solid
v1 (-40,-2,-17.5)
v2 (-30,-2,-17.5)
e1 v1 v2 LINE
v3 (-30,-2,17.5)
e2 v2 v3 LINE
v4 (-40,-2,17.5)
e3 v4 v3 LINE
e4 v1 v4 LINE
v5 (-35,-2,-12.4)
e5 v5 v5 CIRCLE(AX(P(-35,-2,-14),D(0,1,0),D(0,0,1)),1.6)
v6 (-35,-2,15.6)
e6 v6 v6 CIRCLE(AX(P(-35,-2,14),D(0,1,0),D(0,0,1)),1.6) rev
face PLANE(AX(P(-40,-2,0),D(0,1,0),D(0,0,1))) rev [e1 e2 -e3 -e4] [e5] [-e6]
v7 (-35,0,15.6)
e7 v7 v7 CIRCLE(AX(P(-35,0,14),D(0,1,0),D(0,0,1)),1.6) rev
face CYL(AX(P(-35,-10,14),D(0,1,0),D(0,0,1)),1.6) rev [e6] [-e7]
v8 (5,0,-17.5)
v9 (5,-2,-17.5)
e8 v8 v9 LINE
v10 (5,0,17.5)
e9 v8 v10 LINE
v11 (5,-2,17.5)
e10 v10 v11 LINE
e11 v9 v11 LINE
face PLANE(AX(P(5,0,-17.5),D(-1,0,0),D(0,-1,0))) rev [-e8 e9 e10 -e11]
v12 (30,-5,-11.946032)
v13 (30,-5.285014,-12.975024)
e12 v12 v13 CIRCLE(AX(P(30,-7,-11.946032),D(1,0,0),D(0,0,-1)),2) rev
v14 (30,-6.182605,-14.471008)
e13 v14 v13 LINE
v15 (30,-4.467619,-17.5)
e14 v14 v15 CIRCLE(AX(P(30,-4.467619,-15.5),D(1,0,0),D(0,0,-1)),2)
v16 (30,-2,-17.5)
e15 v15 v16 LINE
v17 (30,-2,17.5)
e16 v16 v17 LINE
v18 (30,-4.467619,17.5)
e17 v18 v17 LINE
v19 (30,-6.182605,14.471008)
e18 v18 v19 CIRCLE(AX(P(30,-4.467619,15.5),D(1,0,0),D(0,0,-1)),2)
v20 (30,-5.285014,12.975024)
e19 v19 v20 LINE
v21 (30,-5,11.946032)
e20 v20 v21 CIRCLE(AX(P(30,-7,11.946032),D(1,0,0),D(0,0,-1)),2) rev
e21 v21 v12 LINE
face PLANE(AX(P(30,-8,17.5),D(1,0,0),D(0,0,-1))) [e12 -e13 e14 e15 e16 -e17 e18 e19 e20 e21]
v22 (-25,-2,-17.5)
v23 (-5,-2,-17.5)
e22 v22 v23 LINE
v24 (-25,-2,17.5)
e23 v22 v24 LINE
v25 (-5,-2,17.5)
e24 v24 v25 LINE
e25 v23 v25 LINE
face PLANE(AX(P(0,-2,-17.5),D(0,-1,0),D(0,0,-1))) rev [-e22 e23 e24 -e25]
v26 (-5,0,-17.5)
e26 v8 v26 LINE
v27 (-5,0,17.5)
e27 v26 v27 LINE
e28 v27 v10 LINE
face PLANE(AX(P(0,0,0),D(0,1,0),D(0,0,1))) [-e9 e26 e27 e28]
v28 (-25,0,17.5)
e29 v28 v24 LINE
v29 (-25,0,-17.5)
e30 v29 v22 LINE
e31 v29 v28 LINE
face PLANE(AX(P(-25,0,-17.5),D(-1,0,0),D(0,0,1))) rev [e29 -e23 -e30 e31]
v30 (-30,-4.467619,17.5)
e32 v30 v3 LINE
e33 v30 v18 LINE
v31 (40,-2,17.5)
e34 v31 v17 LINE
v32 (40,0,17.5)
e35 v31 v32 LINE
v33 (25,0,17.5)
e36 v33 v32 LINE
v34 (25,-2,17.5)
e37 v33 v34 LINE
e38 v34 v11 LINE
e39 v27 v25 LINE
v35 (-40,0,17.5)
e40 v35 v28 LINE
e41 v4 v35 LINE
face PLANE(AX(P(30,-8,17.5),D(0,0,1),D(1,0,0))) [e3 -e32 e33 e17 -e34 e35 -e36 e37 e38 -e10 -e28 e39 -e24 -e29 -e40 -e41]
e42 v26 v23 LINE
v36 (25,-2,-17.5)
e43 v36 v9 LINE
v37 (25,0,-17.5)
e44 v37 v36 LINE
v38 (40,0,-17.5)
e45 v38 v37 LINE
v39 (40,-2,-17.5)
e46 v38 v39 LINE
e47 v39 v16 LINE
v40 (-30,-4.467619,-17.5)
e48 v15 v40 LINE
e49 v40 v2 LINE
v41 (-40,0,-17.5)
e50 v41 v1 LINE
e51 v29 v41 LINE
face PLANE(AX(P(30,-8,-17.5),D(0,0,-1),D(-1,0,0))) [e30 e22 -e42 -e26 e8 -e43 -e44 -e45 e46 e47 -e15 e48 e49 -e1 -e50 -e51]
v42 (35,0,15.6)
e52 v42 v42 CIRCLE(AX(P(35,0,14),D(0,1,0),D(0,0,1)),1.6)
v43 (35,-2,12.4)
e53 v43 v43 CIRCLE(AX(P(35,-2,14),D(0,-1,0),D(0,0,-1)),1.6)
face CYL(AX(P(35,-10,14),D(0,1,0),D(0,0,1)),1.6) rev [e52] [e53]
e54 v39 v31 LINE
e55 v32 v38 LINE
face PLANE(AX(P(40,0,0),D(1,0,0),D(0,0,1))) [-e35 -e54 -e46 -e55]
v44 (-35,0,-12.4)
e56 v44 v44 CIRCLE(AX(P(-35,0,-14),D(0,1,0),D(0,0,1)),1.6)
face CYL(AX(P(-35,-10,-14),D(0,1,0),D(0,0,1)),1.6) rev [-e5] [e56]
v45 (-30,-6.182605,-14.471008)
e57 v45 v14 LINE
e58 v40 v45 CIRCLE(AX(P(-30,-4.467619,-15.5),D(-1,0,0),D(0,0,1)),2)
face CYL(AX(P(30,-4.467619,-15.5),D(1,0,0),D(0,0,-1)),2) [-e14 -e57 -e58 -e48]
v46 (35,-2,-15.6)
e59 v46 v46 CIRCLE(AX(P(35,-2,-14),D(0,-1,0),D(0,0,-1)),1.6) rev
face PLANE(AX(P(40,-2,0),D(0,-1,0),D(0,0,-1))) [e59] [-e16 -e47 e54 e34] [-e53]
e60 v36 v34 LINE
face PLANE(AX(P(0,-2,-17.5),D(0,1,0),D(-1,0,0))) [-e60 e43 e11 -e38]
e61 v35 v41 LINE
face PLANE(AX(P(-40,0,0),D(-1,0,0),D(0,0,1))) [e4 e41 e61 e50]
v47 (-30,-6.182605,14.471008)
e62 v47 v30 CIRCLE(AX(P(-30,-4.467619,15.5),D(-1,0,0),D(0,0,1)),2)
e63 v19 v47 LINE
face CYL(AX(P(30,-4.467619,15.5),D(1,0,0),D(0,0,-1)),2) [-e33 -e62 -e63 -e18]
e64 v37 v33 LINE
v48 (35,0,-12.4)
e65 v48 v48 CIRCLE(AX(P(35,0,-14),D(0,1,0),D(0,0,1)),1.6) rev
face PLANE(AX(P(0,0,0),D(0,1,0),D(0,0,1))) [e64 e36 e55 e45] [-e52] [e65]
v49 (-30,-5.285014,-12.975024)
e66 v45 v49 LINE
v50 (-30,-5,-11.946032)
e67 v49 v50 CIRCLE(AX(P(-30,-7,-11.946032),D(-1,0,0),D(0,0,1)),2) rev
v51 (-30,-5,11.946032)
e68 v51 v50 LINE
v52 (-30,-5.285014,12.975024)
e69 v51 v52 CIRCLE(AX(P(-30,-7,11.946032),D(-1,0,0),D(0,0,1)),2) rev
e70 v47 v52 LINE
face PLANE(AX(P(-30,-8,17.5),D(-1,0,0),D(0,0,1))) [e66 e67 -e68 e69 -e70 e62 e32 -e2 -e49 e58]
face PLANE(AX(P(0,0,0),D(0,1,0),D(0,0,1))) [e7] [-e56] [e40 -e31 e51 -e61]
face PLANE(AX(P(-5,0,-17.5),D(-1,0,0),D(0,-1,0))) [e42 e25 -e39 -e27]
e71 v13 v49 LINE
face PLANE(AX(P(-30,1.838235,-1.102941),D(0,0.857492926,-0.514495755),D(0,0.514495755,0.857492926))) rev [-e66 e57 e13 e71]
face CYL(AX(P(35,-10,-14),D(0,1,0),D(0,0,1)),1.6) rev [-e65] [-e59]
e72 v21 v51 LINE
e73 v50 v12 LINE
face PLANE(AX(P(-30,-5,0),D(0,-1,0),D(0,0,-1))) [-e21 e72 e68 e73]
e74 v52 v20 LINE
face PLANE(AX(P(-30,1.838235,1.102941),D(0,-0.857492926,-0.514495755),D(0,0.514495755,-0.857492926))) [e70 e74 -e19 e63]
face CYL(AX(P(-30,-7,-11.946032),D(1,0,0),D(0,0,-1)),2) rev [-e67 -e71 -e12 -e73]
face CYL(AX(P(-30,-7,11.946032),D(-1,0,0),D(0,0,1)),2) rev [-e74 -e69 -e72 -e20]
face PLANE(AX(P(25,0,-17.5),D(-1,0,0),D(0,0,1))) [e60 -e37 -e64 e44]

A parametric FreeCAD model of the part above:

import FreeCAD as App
import Part
import Sketcher
Q = App.Units.Quantity


def edges_at(feature, points):
    """Names of the edges that pass closest to the given points."""
    edges = feature.Shape.Edges
    near = lambda p: min(range(len(edges)), key=lambda i: edges[i].distToShape(Part.Vertex(*p))[0])
    return sorted({f"Edge{near(p) + 1}" for p in points})


def add_polygon(sketch, points):
    """Adds a closed chain of lines whose ends are joined by coincident constraints."""
    first, n = sketch.GeometryCount, len(points)
    for a, b in zip(points, points[1:] + points[:1]):
        sketch.addGeometry(Part.LineSegment(App.Vector(*a, 0), App.Vector(*b, 0)), False)
    for i in range(n):
        sketch.addConstraint(Sketcher.Constraint("Coincident", first + i, 2, first + (i + 1) % n, 1))

doc = App.newDocument("Part")
body = doc.addObject("PartDesign::Body", "Body")

sketch1 = doc.addObject("Sketcher::SketchObject", "Sketch")
body.addObject(sketch1)
sketch1.AttachmentSupport = (doc.XZ_Plane, [""])
sketch1.MapMode = "FlatFace"
add_polygon(sketch1, [(-30, -18), (-30, 18), (30, 18), (30, -18)])
sketch1.addConstraint([
    Sketcher.Constraint("Vertical", 0),
    Sketcher.Constraint("Horizontal", 1),
    Sketcher.Constraint("Vertical", 2),
    Sketcher.Constraint("Horizontal", 3),
    Sketcher.Constraint("Symmetric", 0, 2, 2, 2, -1, 1),
    Sketcher.Constraint("DistanceX", 1, 1, 1, 2, Q("60 mm")),
    Sketcher.Constraint("DistanceY", 0, 1, 0, 2, Q("35 mm")),
])
pad1 = doc.addObject("PartDesign::Pad", "Pad")
body.addObject(pad1)
pad1.Profile = sketch1
pad1.Length = 8

sketch2 = doc.addObject("Sketcher::SketchObject", "Sketch001")
body.addObject(sketch2)
sketch2.AttachmentSupport = (doc.YZ_Plane, [""])
sketch2.MapMode = "FlatFace"
sketch2.AttachmentOffset = App.Placement(App.Vector(0, 0, 30), App.Rotation())
add_polygon(sketch2, [(-5, 12), (-8, 18), (-8, -18), (-5, -12)])
sketch2.addConstraint([
    Sketcher.Constraint("Vertical", 1),
    Sketcher.Constraint("Vertical", 3),
    Sketcher.Constraint("Equal", 0, 2),
    Sketcher.Constraint("DistanceY", 1, 2, 1, 1, Q("35 mm")),
    Sketcher.Constraint("DistanceY", 3, 1, 3, 2, Q("25 mm")),
    Sketcher.Constraint("DistanceX", 0, 2, -1, 1, Q("8 mm")),
    Sketcher.Constraint("DistanceX", 2, 2, -1, 1, Q("5 mm")),
    Sketcher.Constraint("DistanceY", -1, 1, 0, 2, Q("17.5 mm")),
])
pocket1 = doc.addObject("PartDesign::Pocket", "Pocket")
body.addObject(pocket1)
pocket1.Profile = sketch2
pocket1.Type = "ThroughAll"
pocket1.Midplane = True
doc.recompute()

fillet = doc.addObject("PartDesign::Fillet", "Fillet")
body.addObject(fillet)
fillet.Base = (pocket1, edges_at(pocket1, [
    (0, -8, -17.5),
    (0, -5, 12.5),
    (0, -5, -12.5),
    (0, -8, 17.5),
]))
fillet.Radius = 2

sketch3 = doc.addObject("Sketcher::SketchObject", "Sketch002")
body.addObject(sketch3)
sketch3.AttachmentSupport = (doc.XY_Plane, [""])
sketch3.MapMode = "FlatFace"
sketch3.AttachmentOffset = App.Placement(App.Vector(0, 0, 17.5), App.Rotation())
add_polygon(sketch3, [(-25, 0), (-25, -2), (-5, -2), (-5, 0)])
add_polygon(sketch3, [(5, 0), (5, -2), (25, -2), (25, 0)])
sketch3.addConstraint([
    Sketcher.Constraint("Vertical", 0),
    Sketcher.Constraint("Horizontal", 1),
    Sketcher.Constraint("Vertical", 2),
    Sketcher.Constraint("Horizontal", 3),
    Sketcher.Constraint("Vertical", 4),
    Sketcher.Constraint("Horizontal", 5),
    Sketcher.Constraint("Vertical", 6),
    Sketcher.Constraint("Horizontal", 7),
    Sketcher.Constraint("Symmetric", 3, 2, 6, 2, -1, 1),
    Sketcher.Constraint("Symmetric", 1, 2, 4, 2, -2),
    Sketcher.Constraint("PointOnObject", 2, 2, -1),
    Sketcher.Constraint("DistanceX", 1, 1, 1, 2, Q("20 mm")),
    Sketcher.Constraint("DistanceY", 0, 2, 0, 1, Q("2 mm")),
    Sketcher.Constraint("DistanceX", 0, 2, -1, 1, Q("25 mm")),
])
pocket2 = doc.addObject("PartDesign::Pocket", "Pocket001")
body.addObject(pocket2)
pocket2.Profile = sketch3
pocket2.Type = "ThroughAll"

sketch4 = doc.addObject("Sketcher::SketchObject", "Sketch003")
body.addObject(sketch4)
sketch4.AttachmentSupport = (doc.YZ_Plane, [""])
sketch4.MapMode = "FlatFace"
sketch4.AttachmentOffset = App.Placement(App.Vector(0, 0, -30), App.Rotation())
add_polygon(sketch4, [(0, -17.5), (-2, -17.5), (-2, 17.5), (0, 17.5)])
sketch4.addConstraint([
    Sketcher.Constraint("Horizontal", 0),
    Sketcher.Constraint("Vertical", 1),
    Sketcher.Constraint("Horizontal", 2),
    Sketcher.Constraint("Vertical", 3),
    Sketcher.Constraint("Symmetric", 2, 2, 3, 2, -1, 1),
    Sketcher.Constraint("DistanceX", 0, 2, 0, 1, Q("2 mm")),
    Sketcher.Constraint("DistanceY", 1, 1, 1, 2, Q("35 mm")),
])
pad2 = doc.addObject("PartDesign::Pad", "Pad001")
body.addObject(pad2)
pad2.Profile = sketch4
pad2.Length = 10
pad2.Reversed = True
doc.recompute()

mirrored = doc.addObject("PartDesign::Mirrored", "Mirrored")
body.addObject(mirrored)
mirrored.Originals = [pad2]
mirrored.MirrorPlane = (doc.YZ_Plane, [""])
body.Tip = mirrored

sketch5 = doc.addObject("Sketcher::SketchObject", "Sketch004")
body.addObject(sketch5)
sketch5.AttachmentSupport = (doc.XZ_Plane, [""])
sketch5.MapMode = "FlatFace"
sketch5.addGeometry([
    Part.Circle(App.Vector(-35, -14, 0), App.Vector(0, 0, 1), 1.6),
    Part.Circle(App.Vector(35, -14, 0), App.Vector(0, 0, 1), 1.6),
    Part.Circle(App.Vector(35, 14, 0), App.Vector(0, 0, 1), 1.6),
    Part.Circle(App.Vector(-35, 14, 0), App.Vector(0, 0, 1), 1.6),
], False)
sketch5.addConstraint([
    Sketcher.Constraint("Equal", 0, 1),
    Sketcher.Constraint("Equal", 1, 2),
    Sketcher.Constraint("Equal", 2, 3),
    Sketcher.Constraint("Symmetric", 0, 3, 2, 3, -1, 1),
    Sketcher.Constraint("Symmetric", 1, 3, 3, 3, -1, 1),
    Sketcher.Constraint("Symmetric", 0, 3, 1, 3, -2),
    Sketcher.Constraint("Diameter", 0, Q("3.2 mm")),
    Sketcher.Constraint("DistanceX", 0, 3, -1, 1, Q("35 mm")),
    Sketcher.Constraint("DistanceY", 0, 3, -1, 1, Q("14 mm")),
])
pocket3 = doc.addObject("PartDesign::Pocket", "Pocket002")
body.addObject(pocket3)
pocket3.Profile = sketch5
pocket3.Length = 10
pocket3.Reversed = True

doc.recompute()
